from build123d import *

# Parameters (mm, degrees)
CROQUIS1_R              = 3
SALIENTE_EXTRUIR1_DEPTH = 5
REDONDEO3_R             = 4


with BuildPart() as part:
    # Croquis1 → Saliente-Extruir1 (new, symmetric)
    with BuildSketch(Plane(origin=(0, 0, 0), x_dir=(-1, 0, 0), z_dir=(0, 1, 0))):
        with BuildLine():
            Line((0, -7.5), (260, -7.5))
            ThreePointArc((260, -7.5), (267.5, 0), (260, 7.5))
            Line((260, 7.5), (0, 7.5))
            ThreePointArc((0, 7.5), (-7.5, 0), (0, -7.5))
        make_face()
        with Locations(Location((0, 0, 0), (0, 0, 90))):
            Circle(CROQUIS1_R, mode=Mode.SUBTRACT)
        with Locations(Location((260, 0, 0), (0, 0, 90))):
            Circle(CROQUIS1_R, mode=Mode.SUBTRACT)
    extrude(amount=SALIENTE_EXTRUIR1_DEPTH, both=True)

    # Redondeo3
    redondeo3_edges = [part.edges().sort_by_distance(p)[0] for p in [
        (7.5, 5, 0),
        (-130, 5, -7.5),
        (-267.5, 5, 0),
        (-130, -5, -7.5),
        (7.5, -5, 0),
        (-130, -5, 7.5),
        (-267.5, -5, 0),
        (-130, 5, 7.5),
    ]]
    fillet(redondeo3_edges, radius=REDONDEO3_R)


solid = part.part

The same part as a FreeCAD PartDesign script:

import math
import FreeCAD as App
import Part
import Sketcher
from FreeCAD import Vector


def edges_at(feature, points):
    """Names of the edges that pass closest to the given points."""
    edges = feature.Shape.Edges
    near = lambda p: min(range(len(edges)), key=lambda i: edges[i].distToShape(Part.Vertex(*p))[0])
    return sorted({f"Edge{near(p) + 1}" for p in points})

doc = App.newDocument("Part")
body = doc.addObject("PartDesign::Body", "Body")

# Sketch on XZ plane
sketch1 = doc.addObject("Sketcher::SketchObject", "Sketch")
body.addObject(sketch1)
sketch1.AttachmentSupport = (doc.XZ_Plane, [""])
sketch1.MapMode = "FlatFace"
sketch1.addGeometry([
    Part.LineSegment(Vector(0, -7.5, 0), Vector(-260, -7.5, 0)),  # 0
    Part.ArcOfCircle(Part.Circle(Vector(-260, 0, 0), Vector(0, 0, 1), 7.5), math.radians(90), math.radians(270)),  # 1
    Part.LineSegment(Vector(-260, 7.5, 0), Vector(0, 7.5, 0)),  # 2
    Part.ArcOfCircle(Part.Circle(Vector(0, 0, 0), Vector(0, 0, 1), 7.5), math.radians(-90), math.radians(90)),  # 3
    Part.Circle(Vector(0, 0, 0), Vector(0, 0, 1), 3),  # 4
    Part.Circle(Vector(-260, 0, 0), Vector(0, 0, 1), 3),  # 5
], False)
sketch1.addConstraint([
    Sketcher.Constraint("Tangent", 0, 2, 1, 2),
    Sketcher.Constraint("Tangent", 1, 1, 2, 1),
    Sketcher.Constraint("Tangent", 2, 2, 3, 2),
    Sketcher.Constraint("Tangent", 3, 1, 0, 1),
    Sketcher.Constraint("Horizontal", 0),
    Sketcher.Constraint("Horizontal", 2),
    Sketcher.Constraint("Coincident", 3, 3, -1, 1),
    Sketcher.Constraint("Coincident", 4, 3, -1, 1),
    Sketcher.Constraint("Coincident", 5, 3, 1, 3),
    Sketcher.Constraint("Equal", 4, 5),
    Sketcher.Constraint("Diameter", 4, 6.0),
    Sketcher.Constraint("Radius", 1, 7.5),
    Sketcher.Constraint("DistanceX", 0, 2, 0, 1, 260.0),
])
pad1 = doc.addObject("PartDesign::Pad", "Pad")
body.addObject(pad1)
pad1.Profile = sketch1
pad1.Length = 10
pad1.Midplane = True
doc.recompute()

fillet = doc.addObject("PartDesign::Fillet", "Fillet")
body.addObject(fillet)
fillet.Base = (pad1, edges_at(pad1, [
    (7.5, 5, 0),
    (-130, 5, -7.5),
    (-267.5, 5, 0),
    (-130, -5, -7.5),
    (7.5, -5, 0),
    (-130, -5, 7.5),
    (-267.5, -5, 0),
    (-130, 5, 7.5),
]))
fillet.Radius = 4

doc.recompute()
